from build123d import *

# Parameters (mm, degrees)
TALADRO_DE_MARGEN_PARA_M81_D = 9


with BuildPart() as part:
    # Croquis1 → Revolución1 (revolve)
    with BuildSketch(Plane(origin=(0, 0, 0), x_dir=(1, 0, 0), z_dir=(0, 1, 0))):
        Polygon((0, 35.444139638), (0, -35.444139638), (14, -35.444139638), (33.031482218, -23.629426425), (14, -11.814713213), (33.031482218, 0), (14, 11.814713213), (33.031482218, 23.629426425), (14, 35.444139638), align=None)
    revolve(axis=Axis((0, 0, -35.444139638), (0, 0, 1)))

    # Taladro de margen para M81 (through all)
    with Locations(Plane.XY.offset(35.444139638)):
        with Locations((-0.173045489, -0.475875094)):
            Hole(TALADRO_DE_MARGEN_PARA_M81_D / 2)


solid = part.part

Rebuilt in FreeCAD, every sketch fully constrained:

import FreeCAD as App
import Part
import Sketcher

V = App.Vector
Q = App.Units.Quantity

doc = App.newDocument("Part")
params = doc.addObject("Spreadsheet::Sheet", "Params")
for row, (alias, value) in enumerate([
    ("sketch1_width", "14 mm"),
    ("revolution_angle", "360 deg"),
    ("sketch2_diameter", "9 mm"),
    ("hole_diameter", "9 mm"),
], start=1):
    params.set(f"A{row}", alias)
    params.set(f"B{row}", "=" + value)
    params.setAlias(f"B{row}", alias)

body = doc.addObject("PartDesign::Body", "Body")

sketch1 = body.newObject("Sketcher::SketchObject", "Sketch")
sketch1.AttachmentSupport = (doc.getObject("XZ_Plane"), [""])
sketch1.MapMode = "FlatFace"
sketch1.addGeometry(Part.LineSegment(V(0, -35, 0), V(0, 35, 0)), False)
sketch1.addGeometry(Part.LineSegment(V(0, 35, 0), V(14, 35, 0)), False)
sketch1.addGeometry(Part.LineSegment(V(14, 35, 0), V(33, 24, 0)), False)
sketch1.addGeometry(Part.LineSegment(V(33, 24, 0), V(14, 12, 0)), False)
sketch1.addGeometry(Part.LineSegment(V(14, 12, 0), V(33, 0, 0)), False)
sketch1.addGeometry(Part.LineSegment(V(33, 0, 0), V(14, -12, 0)), False)
sketch1.addGeometry(Part.LineSegment(V(14, -12, 0), V(33, -24, 0)), False)
sketch1.addGeometry(Part.LineSegment(V(33, -24, 0), V(14, -35, 0)), False)
sketch1.addGeometry(Part.LineSegment(V(14, -35, 0), V(0, -35, 0)), False)
sketch1.addConstraint(Sketcher.Constraint("Coincident", 0, 2, 1, 1))
sketch1.addConstraint(Sketcher.Constraint("Coincident", 1, 2, 2, 1))
sketch1.addConstraint(Sketcher.Constraint("Coincident", 2, 2, 3, 1))
sketch1.addConstraint(Sketcher.Constraint("Coincident", 3, 2, 4, 1))
sketch1.addConstraint(Sketcher.Constraint("Coincident", 4, 2, 5, 1))
sketch1.addConstraint(Sketcher.Constraint("Coincident", 5, 2, 6, 1))
sketch1.addConstraint(Sketcher.Constraint("Coincident", 6, 2, 7, 1))
sketch1.addConstraint(Sketcher.Constraint("Coincident", 7, 2, 8, 1))
sketch1.addConstraint(Sketcher.Constraint("Coincident", 8, 2, 0, 1))
sketch1.addConstraint(Sketcher.Constraint("Vertical", 0))
sketch1.addConstraint(Sketcher.Constraint("Horizontal", 1))
sketch1.addConstraint(Sketcher.Constraint("Horizontal", 8))
sketch1.addConstraint(Sketcher.Constraint("Symmetric", 0, 2, 8, 2, -1, 1))
sketch1.addConstraint(Sketcher.Constraint("Symmetric", 3, 2, 5, 2, -1))
sketch1.addConstraint(Sketcher.Constraint("Symmetric", 2, 2, 6, 2, -1))
sketch1.addConstraint(Sketcher.Constraint("PointOnObject", 4, 2, -1))
sketch1.addConstraint(Sketcher.Constraint("Parallel", 2, 4))
sketch1.addConstraint(Sketcher.Constraint("Parallel", 3, 5))
sketch1.addConstraint(Sketcher.Constraint("Parallel", 5, 7))
sketch1.addConstraint(Sketcher.Constraint("Vertical", 1, 2, 3, 2))
sketch1.addConstraint(Sketcher.Constraint("Vertical", 2, 2, 4, 2))
sketch1.addConstraint(Sketcher.Constraint("DistanceX", 1, 1, 1, 2, Q("14 mm")))
sketch1.addConstraint(Sketcher.Constraint("DistanceY", 0, 1, 0, 2, Q("70.888279 mm")))
sketch1.addConstraint(Sketcher.Constraint("Distance", 2, Q("22.400553 mm")))
sketch1.setExpression("Constraints[21]", "Params.sketch1_width")
revolution = body.newObject("PartDesign::Revolution", "Revolution")
revolution.Profile = sketch1
revolution.ReferenceAxis = (sketch1, ["V_Axis"])
revolution.setExpression("Angle", "Params.revolution_angle")

sketch2 = body.newObject("Sketcher::SketchObject", "Sketch001")
sketch2.AttachmentSupport = (doc.getObject("XY_Plane"), [""])
sketch2.MapMode = "FlatFace"
sketch2.AttachmentOffset = App.Placement(V(0, 0, 35.44414), App.Rotation())
sketch2.addGeometry(Part.Circle(V(-0.2, -0.5, 0), V(0, 0, 1), 4.5), False)
sketch2.addConstraint(Sketcher.Constraint("Diameter", 0, Q("9 mm")))
sketch2.addConstraint(Sketcher.Constraint("DistanceX", 0, 3, -1, 1, Q("0.173045 mm")))
sketch2.addConstraint(Sketcher.Constraint("DistanceY", 0, 3, -1, 1, Q("0.475875 mm")))
sketch2.setExpression("Constraints[0]", "Params.sketch2_diameter")
doc.recompute()
hole = body.newObject("PartDesign::Hole", "Hole")
hole.Profile = sketch2
hole.ThreadType = "None"
hole.setExpression("Diameter", "Params.hole_diameter")
hole.DepthType = "ThroughAll"

doc.recompute()
